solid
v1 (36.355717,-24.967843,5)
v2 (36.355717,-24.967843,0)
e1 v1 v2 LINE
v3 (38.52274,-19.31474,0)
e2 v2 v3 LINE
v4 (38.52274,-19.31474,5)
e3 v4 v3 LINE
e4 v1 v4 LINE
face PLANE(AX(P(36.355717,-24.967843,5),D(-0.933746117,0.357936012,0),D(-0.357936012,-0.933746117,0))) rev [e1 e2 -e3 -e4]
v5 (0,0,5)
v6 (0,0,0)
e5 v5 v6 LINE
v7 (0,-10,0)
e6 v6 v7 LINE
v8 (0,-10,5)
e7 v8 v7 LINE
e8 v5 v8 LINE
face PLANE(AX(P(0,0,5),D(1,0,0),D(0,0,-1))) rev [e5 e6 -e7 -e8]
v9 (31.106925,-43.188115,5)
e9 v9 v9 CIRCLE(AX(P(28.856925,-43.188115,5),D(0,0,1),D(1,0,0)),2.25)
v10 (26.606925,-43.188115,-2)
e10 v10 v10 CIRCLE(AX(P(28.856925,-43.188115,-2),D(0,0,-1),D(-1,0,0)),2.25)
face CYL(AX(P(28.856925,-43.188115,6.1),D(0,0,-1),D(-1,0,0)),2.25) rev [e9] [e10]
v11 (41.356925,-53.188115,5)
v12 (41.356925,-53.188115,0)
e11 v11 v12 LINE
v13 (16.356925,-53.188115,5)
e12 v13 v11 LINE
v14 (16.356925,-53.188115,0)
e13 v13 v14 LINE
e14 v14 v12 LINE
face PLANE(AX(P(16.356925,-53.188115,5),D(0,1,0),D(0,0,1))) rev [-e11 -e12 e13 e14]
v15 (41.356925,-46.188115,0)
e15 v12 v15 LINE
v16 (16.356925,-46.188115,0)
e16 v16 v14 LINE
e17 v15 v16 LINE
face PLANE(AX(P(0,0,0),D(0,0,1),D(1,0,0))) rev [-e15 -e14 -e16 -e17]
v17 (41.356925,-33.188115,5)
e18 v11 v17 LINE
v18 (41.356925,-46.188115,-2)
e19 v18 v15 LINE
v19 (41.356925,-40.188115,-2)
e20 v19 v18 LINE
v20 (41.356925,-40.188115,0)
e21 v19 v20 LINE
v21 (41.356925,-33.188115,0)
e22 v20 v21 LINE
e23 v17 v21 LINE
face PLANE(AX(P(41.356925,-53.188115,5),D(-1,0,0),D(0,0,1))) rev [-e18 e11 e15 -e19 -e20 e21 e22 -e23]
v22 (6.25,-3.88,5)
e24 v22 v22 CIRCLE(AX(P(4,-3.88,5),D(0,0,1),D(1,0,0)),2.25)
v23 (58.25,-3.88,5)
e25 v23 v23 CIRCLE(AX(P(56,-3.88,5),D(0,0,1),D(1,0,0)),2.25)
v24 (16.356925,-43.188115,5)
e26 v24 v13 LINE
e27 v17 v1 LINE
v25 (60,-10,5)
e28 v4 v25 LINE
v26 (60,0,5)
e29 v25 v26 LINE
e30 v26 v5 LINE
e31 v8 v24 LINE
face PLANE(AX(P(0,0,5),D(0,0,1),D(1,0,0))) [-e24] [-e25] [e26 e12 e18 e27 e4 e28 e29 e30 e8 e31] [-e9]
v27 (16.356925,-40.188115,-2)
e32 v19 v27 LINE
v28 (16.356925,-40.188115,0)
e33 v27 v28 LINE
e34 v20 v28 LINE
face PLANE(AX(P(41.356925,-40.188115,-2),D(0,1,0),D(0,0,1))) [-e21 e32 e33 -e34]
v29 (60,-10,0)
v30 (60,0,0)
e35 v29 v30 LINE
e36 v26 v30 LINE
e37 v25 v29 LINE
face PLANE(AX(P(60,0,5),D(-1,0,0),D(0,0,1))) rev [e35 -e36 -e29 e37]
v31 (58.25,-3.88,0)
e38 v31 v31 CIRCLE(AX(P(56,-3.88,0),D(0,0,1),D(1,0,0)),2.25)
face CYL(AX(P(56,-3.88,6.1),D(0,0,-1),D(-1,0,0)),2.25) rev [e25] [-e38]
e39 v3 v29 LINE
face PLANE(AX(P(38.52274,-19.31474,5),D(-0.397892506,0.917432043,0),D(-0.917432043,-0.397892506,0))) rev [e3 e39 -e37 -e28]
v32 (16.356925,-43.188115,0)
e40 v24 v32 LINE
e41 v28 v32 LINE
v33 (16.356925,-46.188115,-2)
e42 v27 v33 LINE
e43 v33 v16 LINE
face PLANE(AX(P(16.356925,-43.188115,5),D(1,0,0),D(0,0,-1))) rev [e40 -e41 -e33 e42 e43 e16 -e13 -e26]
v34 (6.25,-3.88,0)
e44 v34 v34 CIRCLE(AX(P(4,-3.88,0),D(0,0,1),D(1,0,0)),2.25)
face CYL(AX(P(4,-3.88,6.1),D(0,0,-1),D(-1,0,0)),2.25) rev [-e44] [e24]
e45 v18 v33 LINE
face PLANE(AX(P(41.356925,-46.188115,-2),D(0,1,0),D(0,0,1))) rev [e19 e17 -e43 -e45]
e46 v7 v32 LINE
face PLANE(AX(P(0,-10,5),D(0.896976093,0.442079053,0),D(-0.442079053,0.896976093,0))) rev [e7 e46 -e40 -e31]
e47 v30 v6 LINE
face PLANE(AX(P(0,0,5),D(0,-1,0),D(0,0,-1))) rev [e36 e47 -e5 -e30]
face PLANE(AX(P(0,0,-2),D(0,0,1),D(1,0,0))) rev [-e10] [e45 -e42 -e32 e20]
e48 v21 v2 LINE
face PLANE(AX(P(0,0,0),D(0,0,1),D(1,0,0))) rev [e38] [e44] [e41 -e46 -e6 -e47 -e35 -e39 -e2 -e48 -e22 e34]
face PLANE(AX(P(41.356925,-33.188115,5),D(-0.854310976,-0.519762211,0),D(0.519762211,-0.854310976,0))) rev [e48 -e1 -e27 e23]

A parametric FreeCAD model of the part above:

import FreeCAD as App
import Part
import Sketcher

V = App.Vector
Q = App.Units.Quantity


def add_polygon(sketch, points):
    """Adds a closed chain of lines whose ends are joined by coincident constraints."""
    first, n = sketch.GeometryCount, len(points)
    for a, b in zip(points, points[1:] + points[:1]):
        sketch.addGeometry(Part.LineSegment(App.Vector(*a, 0), App.Vector(*b, 0)), False)
    for i in range(n):
        sketch.addConstraint(Sketcher.Constraint("Coincident", first + i, 2, first + (i + 1) % n, 1))

doc = App.newDocument("Part")
body = doc.addObject("PartDesign::Body", "Body")

# Sketch on XY plane
sketch1 = doc.addObject("Sketcher::SketchObject", "Sketch")
body.addObject(sketch1)
sketch1.AttachmentSupport = (doc.XY_Plane, [""])
sketch1.MapMode = "FlatFace"
add_polygon(sketch1, [(60, 0), (0, 0), (0, -10), (16, -43), (16, -53), (41, -53), (41, -33), (36, -25), (39, -19), (60, -10)])  # lines 0-9
sketch1.addConstraint([
    Sketcher.Constraint("Horizontal", 0),
    Sketcher.Constraint("Vertical", 1),
    Sketcher.Constraint("Vertical", 3),
    Sketcher.Constraint("Horizontal", 4),
    Sketcher.Constraint("Vertical", 5),
    Sketcher.Constraint("Vertical", 9),
    Sketcher.Constraint("Coincident", 0, 2, -1, 1),
    Sketcher.Constraint("Horizontal", 1, 2, 8, 2),
    Sketcher.Constraint("Equal", 1, 3),
    Sketcher.Constraint("DistanceX", 0, 2, 0, 1, Q("60 mm")),
    Sketcher.Constraint("DistanceX", 4, 1, 4, 2, Q("25 mm")),
    Sketcher.Constraint("DistanceY", 1, 2, 1, 1, Q("10 mm")),
    Sketcher.Constraint("DistanceY", 5, 1, 5, 2, Q("20 mm")),
    Sketcher.Constraint("Distance", 2, Q("37 mm")),
    Sketcher.Constraint("Distance", 7, Q("6.054219 mm")),
    Sketcher.Constraint("Distance", 8, Q("23.410192 mm")),
    Sketcher.Constraint("DistanceX", -1, 1, 7, 2, Q("38.52274 mm")),
    Sketcher.Constraint("Distance", 6, Q("9.622108 mm")),
    Sketcher.Constraint("DistanceX", -1, 1, 2, 2, Q("16.356925 mm")),
])
pad1 = doc.addObject("PartDesign::Pad", "Pad")
body.addObject(pad1)
pad1.Profile = sketch1
pad1.Length = 5

# Sketch on XY plane
sketch2 = doc.addObject("Sketcher::SketchObject", "Sketch001")
body.addObject(sketch2)
sketch2.AttachmentSupport = (doc.XY_Plane, [""])
sketch2.MapMode = "FlatFace"
add_polygon(sketch2, [(41, -40), (41, -46), (16, -46), (16, -40)])  # lines 0-3
sketch2.addConstraint([
    Sketcher.Constraint("Vertical", 0),
    Sketcher.Constraint("Horizontal", 1),
    Sketcher.Constraint("Vertical", 2),
    Sketcher.Constraint("Horizontal", 3),
    Sketcher.Constraint("DistanceX", 1, 2, 1, 1, Q("25 mm")),
    Sketcher.Constraint("DistanceY", 0, 2, 0, 1, Q("6 mm")),
    Sketcher.Constraint("DistanceX", -1, 1, 0, 2, Q("41.356925 mm")),
    Sketcher.Constraint("DistanceY", 0, 2, -1, 1, Q("46.188115 mm")),
])
pad2 = doc.addObject("PartDesign::Pad", "Pad001")
body.addObject(pad2)
pad2.Profile = sketch2
pad2.Length = 2
pad2.Reversed = True

# Sketch on XY plane
sketch3 = doc.addObject("Sketcher::SketchObject", "Sketch002")
body.addObject(sketch3)
sketch3.AttachmentSupport = (doc.XY_Plane, [""])
sketch3.MapMode = "FlatFace"
sketch3.AttachmentOffset = App.Placement(V(0, 0, -2), App.Rotation())
sketch3.addGeometry([
    Part.Circle(V(28.9, -43.2, 0), V(0, 0, 1), 2.2),
    Part.Circle(V(56, -3.9, 0), V(0, 0, 1), 2.2),
    Part.Circle(V(4, -3.9, 0), V(0, 0, 1), 2.2),
], False)
sketch3.addConstraint([
    Sketcher.Constraint("Equal", 0, 1),
    Sketcher.Constraint("Equal", 1, 2),
    Sketcher.Constraint("Horizontal", 1, 3, 2, 3),
    Sketcher.Constraint("Diameter", 0, Q("4.5 mm")),
    Sketcher.Constraint("DistanceX", -1, 1, 1, 3, Q("56 mm")),
    Sketcher.Constraint("DistanceX", -1, 1, 2, 3, Q("4 mm")),
    Sketcher.Constraint("DistanceY", 1, 3, -1, 1, Q("3.88 mm")),
    Sketcher.Constraint("DistanceX", -1, 1, 0, 3, Q("28.856925 mm")),
    Sketcher.Constraint("DistanceY", 0, 3, -1, 1, Q("43.188115 mm")),
])
pocket1 = doc.addObject("PartDesign::Pocket", "Pocket")
body.addObject(pocket1)
pocket1.Profile = sketch3
pocket1.Length = 8.1
pocket1.Reversed = True

doc.recompute()
